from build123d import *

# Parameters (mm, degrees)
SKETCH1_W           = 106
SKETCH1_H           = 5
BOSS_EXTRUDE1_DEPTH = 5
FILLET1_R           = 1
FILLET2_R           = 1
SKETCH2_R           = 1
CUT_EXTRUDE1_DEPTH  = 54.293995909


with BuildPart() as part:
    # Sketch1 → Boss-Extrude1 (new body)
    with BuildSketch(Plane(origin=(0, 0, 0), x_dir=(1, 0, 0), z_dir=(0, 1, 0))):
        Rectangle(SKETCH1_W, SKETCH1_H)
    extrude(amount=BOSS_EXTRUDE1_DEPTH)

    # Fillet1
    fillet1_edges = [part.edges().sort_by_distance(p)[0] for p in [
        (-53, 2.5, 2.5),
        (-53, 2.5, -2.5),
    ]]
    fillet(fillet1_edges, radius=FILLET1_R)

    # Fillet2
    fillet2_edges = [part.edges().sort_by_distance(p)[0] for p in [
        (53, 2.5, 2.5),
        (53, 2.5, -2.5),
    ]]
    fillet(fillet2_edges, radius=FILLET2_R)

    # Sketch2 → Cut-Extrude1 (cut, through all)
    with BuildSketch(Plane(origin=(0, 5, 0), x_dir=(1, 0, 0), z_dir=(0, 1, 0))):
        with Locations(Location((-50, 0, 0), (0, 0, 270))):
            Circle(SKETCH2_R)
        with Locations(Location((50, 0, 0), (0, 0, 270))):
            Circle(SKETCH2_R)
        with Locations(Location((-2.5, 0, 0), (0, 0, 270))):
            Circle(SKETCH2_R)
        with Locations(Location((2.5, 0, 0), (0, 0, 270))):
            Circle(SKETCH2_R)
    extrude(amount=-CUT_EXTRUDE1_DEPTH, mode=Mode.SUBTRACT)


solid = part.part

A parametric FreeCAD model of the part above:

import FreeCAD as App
import Part
import Sketcher

V = App.Vector
Q = App.Units.Quantity


def edges_at(feature, points):
    """Names of the edges that pass closest to the given points."""
    edges = feature.Shape.Edges
    near = lambda p: min(range(len(edges)), key=lambda i: edges[i].distToShape(Part.Vertex(*p))[0])
    return sorted({f"Edge{near(p) + 1}" for p in points})


def add_polygon(sketch, points):
    """Adds a closed chain of lines whose ends are joined by coincident constraints."""
    first, n = sketch.GeometryCount, len(points)
    for a, b in zip(points, points[1:] + points[:1]):
        sketch.addGeometry(Part.LineSegment(App.Vector(*a, 0), App.Vector(*b, 0)), False)
    for i in range(n):
        sketch.addConstraint(Sketcher.Constraint("Coincident", first + i, 2, first + (i + 1) % n, 1))

doc = App.newDocument("Part")
body = doc.addObject("PartDesign::Body", "Body")

# Sketch on XZ plane
sketch1 = body.newObject("Sketcher::SketchObject", "Sketch")
sketch1.AttachmentSupport = (doc.getObject("XZ_Plane"), [""])
sketch1.MapMode = "FlatFace"
add_polygon(sketch1, [(-53, -2), (-53, 2), (53, 2), (53, -2)])  # lines 0-3
sketch1.addConstraint([
    Sketcher.Constraint("Vertical", 0),
    Sketcher.Constraint("Horizontal", 1),
    Sketcher.Constraint("Vertical", 2),
    Sketcher.Constraint("Horizontal", 3),
    Sketcher.Constraint("Symmetric", 0, 2, 2, 2, -1, 1),
    Sketcher.Constraint("DistanceX", 1, 1, 1, 2, Q("106 mm")),
    Sketcher.Constraint("DistanceY", 0, 1, 0, 2, Q("5 mm")),
])
pad1 = body.newObject("PartDesign::Pad", "Pad")
pad1.Profile = sketch1
pad1.Length = 5
pad1.Reversed = True
doc.recompute()

fillet = body.newObject("PartDesign::Fillet", "Fillet")
fillet.Base = (pad1, edges_at(pad1, [(-53, 2.5, 2.5), (-53, 2.5, -2.5)]))
fillet.Radius = 1
doc.recompute()

fillet2 = body.newObject("PartDesign::Fillet", "Fillet001")
fillet2.Base = (fillet, edges_at(fillet, [(53, 2.5, 2.5), (53, 2.5, -2.5)]))
fillet2.Radius = 1

# Sketch on XZ plane
sketch2 = body.newObject("Sketcher::SketchObject", "Sketch001")
sketch2.AttachmentSupport = (doc.getObject("XZ_Plane"), [""])
sketch2.MapMode = "FlatFace"
sketch2.AttachmentOffset = App.Placement(V(0, 0, -5), App.Rotation())
sketch2.addGeometry([
    Part.Circle(V(-50, 0, 0), V(0, 0, 1), 1),
    Part.Circle(V(50, 0, 0), V(0, 0, 1), 1),
    Part.Circle(V(-2.5, 0, 0), V(0, 0, 1), 1),
    Part.Circle(V(2.5, 0, 0), V(0, 0, 1), 1),
], False)
sketch2.addConstraint([
    Sketcher.Constraint("Equal", 0, 1),
    Sketcher.Constraint("Equal", 1, 2),
    Sketcher.Constraint("Equal", 2, 3),
    Sketcher.Constraint("Symmetric", 0, 3, 1, 3, -1, 1),
    Sketcher.Constraint("Symmetric", 2, 3, 3, 3, -1, 1),
    Sketcher.Constraint("PointOnObject", 0, 3, -1),
    Sketcher.Constraint("PointOnObject", 2, 3, -1),
    Sketcher.Constraint("Diameter", 0, Q("2 mm")),
    Sketcher.Constraint("DistanceX", 0, 3, -1, 1, Q("50 mm")),
    Sketcher.Constraint("DistanceX", 2, 3, 3, 3, Q("5 mm")),
])
pocket1 = body.newObject("PartDesign::Pocket", "Pocket")
pocket1.Profile = sketch2
pocket1.Type = "ThroughAll"
pocket1.Reversed = True

doc.recompute()
